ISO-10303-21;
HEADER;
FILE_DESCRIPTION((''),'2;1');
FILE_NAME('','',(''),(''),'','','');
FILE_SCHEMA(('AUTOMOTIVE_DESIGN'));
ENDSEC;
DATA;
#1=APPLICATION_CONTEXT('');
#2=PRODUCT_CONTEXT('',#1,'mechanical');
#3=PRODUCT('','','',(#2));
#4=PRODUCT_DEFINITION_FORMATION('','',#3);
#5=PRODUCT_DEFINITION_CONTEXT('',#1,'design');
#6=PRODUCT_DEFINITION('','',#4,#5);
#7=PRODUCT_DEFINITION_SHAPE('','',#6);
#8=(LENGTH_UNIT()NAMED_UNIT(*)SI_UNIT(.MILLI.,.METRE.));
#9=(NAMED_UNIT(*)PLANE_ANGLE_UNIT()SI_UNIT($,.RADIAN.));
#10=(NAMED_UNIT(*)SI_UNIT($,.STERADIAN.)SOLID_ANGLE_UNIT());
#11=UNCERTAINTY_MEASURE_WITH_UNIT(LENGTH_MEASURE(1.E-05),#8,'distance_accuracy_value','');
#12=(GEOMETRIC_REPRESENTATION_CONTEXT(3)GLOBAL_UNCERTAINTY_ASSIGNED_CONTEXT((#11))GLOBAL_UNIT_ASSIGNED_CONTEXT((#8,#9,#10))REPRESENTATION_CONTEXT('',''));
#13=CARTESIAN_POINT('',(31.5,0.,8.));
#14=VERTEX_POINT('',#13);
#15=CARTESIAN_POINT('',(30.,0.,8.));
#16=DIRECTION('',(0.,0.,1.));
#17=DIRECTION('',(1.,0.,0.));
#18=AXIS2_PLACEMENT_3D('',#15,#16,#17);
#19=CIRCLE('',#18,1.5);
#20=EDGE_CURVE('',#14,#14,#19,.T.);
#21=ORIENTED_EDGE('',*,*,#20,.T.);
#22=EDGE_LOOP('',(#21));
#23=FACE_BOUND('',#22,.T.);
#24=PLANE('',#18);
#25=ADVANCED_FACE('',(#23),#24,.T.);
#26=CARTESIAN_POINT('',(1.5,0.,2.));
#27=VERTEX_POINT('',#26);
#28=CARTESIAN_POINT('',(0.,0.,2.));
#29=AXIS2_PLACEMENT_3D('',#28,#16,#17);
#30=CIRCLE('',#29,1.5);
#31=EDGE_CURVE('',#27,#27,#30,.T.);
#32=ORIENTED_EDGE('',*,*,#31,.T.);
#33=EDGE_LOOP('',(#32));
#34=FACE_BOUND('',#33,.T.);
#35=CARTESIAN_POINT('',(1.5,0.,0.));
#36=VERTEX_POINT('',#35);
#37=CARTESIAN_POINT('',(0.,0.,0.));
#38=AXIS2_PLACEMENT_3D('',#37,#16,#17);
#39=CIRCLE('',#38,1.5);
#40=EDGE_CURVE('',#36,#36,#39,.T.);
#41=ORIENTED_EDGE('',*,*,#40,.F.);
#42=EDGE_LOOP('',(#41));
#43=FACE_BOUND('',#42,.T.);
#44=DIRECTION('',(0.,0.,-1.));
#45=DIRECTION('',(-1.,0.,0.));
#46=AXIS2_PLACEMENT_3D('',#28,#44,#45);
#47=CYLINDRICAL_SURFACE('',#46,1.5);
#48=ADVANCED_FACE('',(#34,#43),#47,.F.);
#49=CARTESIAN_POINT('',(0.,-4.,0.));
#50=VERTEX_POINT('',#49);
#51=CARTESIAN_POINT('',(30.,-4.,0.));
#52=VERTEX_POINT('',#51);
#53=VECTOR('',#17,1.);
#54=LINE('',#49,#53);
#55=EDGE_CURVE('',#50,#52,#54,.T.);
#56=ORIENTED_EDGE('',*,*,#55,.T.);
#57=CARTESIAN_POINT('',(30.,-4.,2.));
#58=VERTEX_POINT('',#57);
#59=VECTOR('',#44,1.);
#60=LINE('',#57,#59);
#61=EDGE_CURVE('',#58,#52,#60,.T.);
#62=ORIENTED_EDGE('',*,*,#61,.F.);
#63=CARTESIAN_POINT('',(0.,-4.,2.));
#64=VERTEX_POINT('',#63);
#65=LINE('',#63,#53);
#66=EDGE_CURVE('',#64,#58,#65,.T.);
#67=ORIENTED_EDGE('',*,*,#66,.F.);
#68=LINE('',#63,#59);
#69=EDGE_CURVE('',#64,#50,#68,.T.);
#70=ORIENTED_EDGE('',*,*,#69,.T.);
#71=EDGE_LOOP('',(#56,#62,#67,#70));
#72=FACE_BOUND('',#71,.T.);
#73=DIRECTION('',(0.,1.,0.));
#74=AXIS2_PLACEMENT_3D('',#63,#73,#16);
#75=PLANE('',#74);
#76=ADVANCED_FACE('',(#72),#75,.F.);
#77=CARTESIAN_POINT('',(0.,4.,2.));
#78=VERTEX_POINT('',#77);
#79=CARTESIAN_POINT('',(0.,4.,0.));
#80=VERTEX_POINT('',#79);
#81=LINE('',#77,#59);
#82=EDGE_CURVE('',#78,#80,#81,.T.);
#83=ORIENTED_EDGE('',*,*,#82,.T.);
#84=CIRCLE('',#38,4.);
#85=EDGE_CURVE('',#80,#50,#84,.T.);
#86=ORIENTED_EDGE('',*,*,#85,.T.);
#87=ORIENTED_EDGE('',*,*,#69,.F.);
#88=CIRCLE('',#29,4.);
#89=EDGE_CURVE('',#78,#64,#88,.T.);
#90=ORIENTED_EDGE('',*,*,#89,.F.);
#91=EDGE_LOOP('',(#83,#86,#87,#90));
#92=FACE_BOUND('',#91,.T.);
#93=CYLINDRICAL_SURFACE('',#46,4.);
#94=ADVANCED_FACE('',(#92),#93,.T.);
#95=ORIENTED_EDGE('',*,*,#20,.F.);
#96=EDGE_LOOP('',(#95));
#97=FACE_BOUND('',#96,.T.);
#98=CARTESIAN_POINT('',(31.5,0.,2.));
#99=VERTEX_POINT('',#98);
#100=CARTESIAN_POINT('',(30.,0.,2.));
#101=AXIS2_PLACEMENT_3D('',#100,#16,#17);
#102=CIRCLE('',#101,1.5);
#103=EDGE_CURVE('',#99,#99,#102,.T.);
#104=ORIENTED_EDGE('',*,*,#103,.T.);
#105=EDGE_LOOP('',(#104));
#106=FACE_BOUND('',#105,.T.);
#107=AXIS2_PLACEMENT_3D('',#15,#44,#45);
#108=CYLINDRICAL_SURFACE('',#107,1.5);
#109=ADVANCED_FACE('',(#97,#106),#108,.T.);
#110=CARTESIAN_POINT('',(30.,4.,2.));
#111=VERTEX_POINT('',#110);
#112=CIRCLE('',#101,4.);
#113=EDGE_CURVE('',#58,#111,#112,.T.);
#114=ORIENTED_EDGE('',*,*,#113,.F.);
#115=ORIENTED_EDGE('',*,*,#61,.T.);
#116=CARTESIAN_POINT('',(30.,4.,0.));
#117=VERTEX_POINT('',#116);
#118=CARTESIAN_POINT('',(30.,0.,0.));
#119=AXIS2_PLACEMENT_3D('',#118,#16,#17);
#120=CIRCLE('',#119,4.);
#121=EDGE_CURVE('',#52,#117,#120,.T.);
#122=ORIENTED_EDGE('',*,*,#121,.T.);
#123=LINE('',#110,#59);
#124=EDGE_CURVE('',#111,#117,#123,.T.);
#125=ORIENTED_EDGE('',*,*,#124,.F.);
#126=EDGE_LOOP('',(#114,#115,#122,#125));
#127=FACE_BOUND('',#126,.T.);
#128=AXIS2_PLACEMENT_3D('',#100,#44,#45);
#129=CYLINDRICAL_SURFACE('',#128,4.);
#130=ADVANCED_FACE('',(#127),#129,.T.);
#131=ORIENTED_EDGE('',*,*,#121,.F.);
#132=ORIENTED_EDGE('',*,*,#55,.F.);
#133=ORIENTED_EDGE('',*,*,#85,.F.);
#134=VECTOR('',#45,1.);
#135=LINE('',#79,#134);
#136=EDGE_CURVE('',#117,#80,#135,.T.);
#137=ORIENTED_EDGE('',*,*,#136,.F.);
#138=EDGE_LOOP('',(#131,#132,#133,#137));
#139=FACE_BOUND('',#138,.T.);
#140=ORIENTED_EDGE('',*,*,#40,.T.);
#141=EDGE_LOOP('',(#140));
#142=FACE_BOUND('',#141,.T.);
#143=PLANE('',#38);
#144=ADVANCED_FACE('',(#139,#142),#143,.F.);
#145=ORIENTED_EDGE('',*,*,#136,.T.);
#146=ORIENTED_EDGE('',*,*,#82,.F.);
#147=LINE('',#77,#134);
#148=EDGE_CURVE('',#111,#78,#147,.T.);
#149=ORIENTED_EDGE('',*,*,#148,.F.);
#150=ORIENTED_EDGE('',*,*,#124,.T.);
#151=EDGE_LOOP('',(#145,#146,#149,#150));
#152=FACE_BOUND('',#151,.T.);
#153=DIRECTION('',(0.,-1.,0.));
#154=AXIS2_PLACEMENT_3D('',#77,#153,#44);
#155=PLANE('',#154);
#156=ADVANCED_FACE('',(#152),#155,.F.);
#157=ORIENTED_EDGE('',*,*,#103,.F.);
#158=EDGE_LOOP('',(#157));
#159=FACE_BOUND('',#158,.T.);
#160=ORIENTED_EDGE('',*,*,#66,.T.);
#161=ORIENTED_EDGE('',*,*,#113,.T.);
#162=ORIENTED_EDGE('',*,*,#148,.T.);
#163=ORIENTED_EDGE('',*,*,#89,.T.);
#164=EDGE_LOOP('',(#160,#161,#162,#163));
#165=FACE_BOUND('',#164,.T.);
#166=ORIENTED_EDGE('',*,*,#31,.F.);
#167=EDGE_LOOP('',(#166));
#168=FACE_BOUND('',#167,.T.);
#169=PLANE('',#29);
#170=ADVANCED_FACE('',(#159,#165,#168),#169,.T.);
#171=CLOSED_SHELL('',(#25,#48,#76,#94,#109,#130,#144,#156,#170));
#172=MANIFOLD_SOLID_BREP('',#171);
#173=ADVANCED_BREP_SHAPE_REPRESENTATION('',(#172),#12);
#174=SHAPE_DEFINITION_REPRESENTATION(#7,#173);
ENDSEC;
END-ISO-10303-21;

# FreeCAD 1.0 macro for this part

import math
import FreeCAD as App
import Part
import Sketcher
from FreeCAD import Vector

doc = App.newDocument("Part")
body = doc.addObject("PartDesign::Body", "Body")

# Sketch on XY plane
sketch1 = doc.addObject("Sketcher::SketchObject", "Sketch")
body.addObject(sketch1)
sketch1.AttachmentSupport = (doc.XY_Plane, [""])
sketch1.MapMode = "FlatFace"
sketch1.addGeometry([
    Part.LineSegment(Vector(30, 4, 0), Vector(0, 4, 0)),  # 0
    Part.ArcOfCircle(Part.Circle(Vector(0, 0, 0), Vector(0, 0, 1), 4), math.radians(90), math.radians(270)),  # 1
    Part.LineSegment(Vector(0, -4, 0), Vector(30, -4, 0)),  # 2
    Part.ArcOfCircle(Part.Circle(Vector(30, 0, 0), Vector(0, 0, 1), 4), math.radians(-90), math.radians(90)),  # 3
    Part.Circle(Vector(0, 0, 0), Vector(0, 0, 1), 1.5),  # 4
], False)
sketch1.addConstraint([
    Sketcher.Constraint("Tangent", 0, 2, 1, 1),
    Sketcher.Constraint("Tangent", 1, 2, 2, 1),
    Sketcher.Constraint("Tangent", 2, 2, 3, 1),
    Sketcher.Constraint("Tangent", 3, 2, 0, 1),
    Sketcher.Constraint("Horizontal", 0),
    Sketcher.Constraint("Horizontal", 2),
    Sketcher.Constraint("Coincident", 1, 3, -1, 1),
    Sketcher.Constraint("Coincident", 4, 3, -1, 1),
    Sketcher.Constraint("Diameter", 4, 3.0),
    Sketcher.Constraint("Radius", 1, 4.0),
    Sketcher.Constraint("DistanceX", 0, 2, 0, 1, 30.0),
])
pad1 = doc.addObject("PartDesign::Pad", "Pad")
body.addObject(pad1)
pad1.Profile = sketch1
pad1.Length = 2

# Sketch on XY plane
sketch2 = doc.addObject("Sketcher::SketchObject", "Sketch001")
body.addObject(sketch2)
sketch2.AttachmentSupport = (doc.XY_Plane, [""])
sketch2.MapMode = "FlatFace"
sketch2.AttachmentOffset = App.Placement(Vector(0, 0, 2), App.Rotation())
sketch2.addGeometry(Part.Circle(Vector(30, 0, 0), Vector(0, 0, 1), 1.5), False)
sketch2.addConstraint([
    Sketcher.Constraint("PointOnObject", 0, 3, -1),
    Sketcher.Constraint("Diameter", 0, 3.0),
    Sketcher.Constraint("DistanceX", -1, 1, 0, 3, 30.0),
])
pad2 = doc.addObject("PartDesign::Pad", "Pad001")
body.addObject(pad2)
pad2.Profile = sketch2
pad2.Length = 6

doc.recompute()
